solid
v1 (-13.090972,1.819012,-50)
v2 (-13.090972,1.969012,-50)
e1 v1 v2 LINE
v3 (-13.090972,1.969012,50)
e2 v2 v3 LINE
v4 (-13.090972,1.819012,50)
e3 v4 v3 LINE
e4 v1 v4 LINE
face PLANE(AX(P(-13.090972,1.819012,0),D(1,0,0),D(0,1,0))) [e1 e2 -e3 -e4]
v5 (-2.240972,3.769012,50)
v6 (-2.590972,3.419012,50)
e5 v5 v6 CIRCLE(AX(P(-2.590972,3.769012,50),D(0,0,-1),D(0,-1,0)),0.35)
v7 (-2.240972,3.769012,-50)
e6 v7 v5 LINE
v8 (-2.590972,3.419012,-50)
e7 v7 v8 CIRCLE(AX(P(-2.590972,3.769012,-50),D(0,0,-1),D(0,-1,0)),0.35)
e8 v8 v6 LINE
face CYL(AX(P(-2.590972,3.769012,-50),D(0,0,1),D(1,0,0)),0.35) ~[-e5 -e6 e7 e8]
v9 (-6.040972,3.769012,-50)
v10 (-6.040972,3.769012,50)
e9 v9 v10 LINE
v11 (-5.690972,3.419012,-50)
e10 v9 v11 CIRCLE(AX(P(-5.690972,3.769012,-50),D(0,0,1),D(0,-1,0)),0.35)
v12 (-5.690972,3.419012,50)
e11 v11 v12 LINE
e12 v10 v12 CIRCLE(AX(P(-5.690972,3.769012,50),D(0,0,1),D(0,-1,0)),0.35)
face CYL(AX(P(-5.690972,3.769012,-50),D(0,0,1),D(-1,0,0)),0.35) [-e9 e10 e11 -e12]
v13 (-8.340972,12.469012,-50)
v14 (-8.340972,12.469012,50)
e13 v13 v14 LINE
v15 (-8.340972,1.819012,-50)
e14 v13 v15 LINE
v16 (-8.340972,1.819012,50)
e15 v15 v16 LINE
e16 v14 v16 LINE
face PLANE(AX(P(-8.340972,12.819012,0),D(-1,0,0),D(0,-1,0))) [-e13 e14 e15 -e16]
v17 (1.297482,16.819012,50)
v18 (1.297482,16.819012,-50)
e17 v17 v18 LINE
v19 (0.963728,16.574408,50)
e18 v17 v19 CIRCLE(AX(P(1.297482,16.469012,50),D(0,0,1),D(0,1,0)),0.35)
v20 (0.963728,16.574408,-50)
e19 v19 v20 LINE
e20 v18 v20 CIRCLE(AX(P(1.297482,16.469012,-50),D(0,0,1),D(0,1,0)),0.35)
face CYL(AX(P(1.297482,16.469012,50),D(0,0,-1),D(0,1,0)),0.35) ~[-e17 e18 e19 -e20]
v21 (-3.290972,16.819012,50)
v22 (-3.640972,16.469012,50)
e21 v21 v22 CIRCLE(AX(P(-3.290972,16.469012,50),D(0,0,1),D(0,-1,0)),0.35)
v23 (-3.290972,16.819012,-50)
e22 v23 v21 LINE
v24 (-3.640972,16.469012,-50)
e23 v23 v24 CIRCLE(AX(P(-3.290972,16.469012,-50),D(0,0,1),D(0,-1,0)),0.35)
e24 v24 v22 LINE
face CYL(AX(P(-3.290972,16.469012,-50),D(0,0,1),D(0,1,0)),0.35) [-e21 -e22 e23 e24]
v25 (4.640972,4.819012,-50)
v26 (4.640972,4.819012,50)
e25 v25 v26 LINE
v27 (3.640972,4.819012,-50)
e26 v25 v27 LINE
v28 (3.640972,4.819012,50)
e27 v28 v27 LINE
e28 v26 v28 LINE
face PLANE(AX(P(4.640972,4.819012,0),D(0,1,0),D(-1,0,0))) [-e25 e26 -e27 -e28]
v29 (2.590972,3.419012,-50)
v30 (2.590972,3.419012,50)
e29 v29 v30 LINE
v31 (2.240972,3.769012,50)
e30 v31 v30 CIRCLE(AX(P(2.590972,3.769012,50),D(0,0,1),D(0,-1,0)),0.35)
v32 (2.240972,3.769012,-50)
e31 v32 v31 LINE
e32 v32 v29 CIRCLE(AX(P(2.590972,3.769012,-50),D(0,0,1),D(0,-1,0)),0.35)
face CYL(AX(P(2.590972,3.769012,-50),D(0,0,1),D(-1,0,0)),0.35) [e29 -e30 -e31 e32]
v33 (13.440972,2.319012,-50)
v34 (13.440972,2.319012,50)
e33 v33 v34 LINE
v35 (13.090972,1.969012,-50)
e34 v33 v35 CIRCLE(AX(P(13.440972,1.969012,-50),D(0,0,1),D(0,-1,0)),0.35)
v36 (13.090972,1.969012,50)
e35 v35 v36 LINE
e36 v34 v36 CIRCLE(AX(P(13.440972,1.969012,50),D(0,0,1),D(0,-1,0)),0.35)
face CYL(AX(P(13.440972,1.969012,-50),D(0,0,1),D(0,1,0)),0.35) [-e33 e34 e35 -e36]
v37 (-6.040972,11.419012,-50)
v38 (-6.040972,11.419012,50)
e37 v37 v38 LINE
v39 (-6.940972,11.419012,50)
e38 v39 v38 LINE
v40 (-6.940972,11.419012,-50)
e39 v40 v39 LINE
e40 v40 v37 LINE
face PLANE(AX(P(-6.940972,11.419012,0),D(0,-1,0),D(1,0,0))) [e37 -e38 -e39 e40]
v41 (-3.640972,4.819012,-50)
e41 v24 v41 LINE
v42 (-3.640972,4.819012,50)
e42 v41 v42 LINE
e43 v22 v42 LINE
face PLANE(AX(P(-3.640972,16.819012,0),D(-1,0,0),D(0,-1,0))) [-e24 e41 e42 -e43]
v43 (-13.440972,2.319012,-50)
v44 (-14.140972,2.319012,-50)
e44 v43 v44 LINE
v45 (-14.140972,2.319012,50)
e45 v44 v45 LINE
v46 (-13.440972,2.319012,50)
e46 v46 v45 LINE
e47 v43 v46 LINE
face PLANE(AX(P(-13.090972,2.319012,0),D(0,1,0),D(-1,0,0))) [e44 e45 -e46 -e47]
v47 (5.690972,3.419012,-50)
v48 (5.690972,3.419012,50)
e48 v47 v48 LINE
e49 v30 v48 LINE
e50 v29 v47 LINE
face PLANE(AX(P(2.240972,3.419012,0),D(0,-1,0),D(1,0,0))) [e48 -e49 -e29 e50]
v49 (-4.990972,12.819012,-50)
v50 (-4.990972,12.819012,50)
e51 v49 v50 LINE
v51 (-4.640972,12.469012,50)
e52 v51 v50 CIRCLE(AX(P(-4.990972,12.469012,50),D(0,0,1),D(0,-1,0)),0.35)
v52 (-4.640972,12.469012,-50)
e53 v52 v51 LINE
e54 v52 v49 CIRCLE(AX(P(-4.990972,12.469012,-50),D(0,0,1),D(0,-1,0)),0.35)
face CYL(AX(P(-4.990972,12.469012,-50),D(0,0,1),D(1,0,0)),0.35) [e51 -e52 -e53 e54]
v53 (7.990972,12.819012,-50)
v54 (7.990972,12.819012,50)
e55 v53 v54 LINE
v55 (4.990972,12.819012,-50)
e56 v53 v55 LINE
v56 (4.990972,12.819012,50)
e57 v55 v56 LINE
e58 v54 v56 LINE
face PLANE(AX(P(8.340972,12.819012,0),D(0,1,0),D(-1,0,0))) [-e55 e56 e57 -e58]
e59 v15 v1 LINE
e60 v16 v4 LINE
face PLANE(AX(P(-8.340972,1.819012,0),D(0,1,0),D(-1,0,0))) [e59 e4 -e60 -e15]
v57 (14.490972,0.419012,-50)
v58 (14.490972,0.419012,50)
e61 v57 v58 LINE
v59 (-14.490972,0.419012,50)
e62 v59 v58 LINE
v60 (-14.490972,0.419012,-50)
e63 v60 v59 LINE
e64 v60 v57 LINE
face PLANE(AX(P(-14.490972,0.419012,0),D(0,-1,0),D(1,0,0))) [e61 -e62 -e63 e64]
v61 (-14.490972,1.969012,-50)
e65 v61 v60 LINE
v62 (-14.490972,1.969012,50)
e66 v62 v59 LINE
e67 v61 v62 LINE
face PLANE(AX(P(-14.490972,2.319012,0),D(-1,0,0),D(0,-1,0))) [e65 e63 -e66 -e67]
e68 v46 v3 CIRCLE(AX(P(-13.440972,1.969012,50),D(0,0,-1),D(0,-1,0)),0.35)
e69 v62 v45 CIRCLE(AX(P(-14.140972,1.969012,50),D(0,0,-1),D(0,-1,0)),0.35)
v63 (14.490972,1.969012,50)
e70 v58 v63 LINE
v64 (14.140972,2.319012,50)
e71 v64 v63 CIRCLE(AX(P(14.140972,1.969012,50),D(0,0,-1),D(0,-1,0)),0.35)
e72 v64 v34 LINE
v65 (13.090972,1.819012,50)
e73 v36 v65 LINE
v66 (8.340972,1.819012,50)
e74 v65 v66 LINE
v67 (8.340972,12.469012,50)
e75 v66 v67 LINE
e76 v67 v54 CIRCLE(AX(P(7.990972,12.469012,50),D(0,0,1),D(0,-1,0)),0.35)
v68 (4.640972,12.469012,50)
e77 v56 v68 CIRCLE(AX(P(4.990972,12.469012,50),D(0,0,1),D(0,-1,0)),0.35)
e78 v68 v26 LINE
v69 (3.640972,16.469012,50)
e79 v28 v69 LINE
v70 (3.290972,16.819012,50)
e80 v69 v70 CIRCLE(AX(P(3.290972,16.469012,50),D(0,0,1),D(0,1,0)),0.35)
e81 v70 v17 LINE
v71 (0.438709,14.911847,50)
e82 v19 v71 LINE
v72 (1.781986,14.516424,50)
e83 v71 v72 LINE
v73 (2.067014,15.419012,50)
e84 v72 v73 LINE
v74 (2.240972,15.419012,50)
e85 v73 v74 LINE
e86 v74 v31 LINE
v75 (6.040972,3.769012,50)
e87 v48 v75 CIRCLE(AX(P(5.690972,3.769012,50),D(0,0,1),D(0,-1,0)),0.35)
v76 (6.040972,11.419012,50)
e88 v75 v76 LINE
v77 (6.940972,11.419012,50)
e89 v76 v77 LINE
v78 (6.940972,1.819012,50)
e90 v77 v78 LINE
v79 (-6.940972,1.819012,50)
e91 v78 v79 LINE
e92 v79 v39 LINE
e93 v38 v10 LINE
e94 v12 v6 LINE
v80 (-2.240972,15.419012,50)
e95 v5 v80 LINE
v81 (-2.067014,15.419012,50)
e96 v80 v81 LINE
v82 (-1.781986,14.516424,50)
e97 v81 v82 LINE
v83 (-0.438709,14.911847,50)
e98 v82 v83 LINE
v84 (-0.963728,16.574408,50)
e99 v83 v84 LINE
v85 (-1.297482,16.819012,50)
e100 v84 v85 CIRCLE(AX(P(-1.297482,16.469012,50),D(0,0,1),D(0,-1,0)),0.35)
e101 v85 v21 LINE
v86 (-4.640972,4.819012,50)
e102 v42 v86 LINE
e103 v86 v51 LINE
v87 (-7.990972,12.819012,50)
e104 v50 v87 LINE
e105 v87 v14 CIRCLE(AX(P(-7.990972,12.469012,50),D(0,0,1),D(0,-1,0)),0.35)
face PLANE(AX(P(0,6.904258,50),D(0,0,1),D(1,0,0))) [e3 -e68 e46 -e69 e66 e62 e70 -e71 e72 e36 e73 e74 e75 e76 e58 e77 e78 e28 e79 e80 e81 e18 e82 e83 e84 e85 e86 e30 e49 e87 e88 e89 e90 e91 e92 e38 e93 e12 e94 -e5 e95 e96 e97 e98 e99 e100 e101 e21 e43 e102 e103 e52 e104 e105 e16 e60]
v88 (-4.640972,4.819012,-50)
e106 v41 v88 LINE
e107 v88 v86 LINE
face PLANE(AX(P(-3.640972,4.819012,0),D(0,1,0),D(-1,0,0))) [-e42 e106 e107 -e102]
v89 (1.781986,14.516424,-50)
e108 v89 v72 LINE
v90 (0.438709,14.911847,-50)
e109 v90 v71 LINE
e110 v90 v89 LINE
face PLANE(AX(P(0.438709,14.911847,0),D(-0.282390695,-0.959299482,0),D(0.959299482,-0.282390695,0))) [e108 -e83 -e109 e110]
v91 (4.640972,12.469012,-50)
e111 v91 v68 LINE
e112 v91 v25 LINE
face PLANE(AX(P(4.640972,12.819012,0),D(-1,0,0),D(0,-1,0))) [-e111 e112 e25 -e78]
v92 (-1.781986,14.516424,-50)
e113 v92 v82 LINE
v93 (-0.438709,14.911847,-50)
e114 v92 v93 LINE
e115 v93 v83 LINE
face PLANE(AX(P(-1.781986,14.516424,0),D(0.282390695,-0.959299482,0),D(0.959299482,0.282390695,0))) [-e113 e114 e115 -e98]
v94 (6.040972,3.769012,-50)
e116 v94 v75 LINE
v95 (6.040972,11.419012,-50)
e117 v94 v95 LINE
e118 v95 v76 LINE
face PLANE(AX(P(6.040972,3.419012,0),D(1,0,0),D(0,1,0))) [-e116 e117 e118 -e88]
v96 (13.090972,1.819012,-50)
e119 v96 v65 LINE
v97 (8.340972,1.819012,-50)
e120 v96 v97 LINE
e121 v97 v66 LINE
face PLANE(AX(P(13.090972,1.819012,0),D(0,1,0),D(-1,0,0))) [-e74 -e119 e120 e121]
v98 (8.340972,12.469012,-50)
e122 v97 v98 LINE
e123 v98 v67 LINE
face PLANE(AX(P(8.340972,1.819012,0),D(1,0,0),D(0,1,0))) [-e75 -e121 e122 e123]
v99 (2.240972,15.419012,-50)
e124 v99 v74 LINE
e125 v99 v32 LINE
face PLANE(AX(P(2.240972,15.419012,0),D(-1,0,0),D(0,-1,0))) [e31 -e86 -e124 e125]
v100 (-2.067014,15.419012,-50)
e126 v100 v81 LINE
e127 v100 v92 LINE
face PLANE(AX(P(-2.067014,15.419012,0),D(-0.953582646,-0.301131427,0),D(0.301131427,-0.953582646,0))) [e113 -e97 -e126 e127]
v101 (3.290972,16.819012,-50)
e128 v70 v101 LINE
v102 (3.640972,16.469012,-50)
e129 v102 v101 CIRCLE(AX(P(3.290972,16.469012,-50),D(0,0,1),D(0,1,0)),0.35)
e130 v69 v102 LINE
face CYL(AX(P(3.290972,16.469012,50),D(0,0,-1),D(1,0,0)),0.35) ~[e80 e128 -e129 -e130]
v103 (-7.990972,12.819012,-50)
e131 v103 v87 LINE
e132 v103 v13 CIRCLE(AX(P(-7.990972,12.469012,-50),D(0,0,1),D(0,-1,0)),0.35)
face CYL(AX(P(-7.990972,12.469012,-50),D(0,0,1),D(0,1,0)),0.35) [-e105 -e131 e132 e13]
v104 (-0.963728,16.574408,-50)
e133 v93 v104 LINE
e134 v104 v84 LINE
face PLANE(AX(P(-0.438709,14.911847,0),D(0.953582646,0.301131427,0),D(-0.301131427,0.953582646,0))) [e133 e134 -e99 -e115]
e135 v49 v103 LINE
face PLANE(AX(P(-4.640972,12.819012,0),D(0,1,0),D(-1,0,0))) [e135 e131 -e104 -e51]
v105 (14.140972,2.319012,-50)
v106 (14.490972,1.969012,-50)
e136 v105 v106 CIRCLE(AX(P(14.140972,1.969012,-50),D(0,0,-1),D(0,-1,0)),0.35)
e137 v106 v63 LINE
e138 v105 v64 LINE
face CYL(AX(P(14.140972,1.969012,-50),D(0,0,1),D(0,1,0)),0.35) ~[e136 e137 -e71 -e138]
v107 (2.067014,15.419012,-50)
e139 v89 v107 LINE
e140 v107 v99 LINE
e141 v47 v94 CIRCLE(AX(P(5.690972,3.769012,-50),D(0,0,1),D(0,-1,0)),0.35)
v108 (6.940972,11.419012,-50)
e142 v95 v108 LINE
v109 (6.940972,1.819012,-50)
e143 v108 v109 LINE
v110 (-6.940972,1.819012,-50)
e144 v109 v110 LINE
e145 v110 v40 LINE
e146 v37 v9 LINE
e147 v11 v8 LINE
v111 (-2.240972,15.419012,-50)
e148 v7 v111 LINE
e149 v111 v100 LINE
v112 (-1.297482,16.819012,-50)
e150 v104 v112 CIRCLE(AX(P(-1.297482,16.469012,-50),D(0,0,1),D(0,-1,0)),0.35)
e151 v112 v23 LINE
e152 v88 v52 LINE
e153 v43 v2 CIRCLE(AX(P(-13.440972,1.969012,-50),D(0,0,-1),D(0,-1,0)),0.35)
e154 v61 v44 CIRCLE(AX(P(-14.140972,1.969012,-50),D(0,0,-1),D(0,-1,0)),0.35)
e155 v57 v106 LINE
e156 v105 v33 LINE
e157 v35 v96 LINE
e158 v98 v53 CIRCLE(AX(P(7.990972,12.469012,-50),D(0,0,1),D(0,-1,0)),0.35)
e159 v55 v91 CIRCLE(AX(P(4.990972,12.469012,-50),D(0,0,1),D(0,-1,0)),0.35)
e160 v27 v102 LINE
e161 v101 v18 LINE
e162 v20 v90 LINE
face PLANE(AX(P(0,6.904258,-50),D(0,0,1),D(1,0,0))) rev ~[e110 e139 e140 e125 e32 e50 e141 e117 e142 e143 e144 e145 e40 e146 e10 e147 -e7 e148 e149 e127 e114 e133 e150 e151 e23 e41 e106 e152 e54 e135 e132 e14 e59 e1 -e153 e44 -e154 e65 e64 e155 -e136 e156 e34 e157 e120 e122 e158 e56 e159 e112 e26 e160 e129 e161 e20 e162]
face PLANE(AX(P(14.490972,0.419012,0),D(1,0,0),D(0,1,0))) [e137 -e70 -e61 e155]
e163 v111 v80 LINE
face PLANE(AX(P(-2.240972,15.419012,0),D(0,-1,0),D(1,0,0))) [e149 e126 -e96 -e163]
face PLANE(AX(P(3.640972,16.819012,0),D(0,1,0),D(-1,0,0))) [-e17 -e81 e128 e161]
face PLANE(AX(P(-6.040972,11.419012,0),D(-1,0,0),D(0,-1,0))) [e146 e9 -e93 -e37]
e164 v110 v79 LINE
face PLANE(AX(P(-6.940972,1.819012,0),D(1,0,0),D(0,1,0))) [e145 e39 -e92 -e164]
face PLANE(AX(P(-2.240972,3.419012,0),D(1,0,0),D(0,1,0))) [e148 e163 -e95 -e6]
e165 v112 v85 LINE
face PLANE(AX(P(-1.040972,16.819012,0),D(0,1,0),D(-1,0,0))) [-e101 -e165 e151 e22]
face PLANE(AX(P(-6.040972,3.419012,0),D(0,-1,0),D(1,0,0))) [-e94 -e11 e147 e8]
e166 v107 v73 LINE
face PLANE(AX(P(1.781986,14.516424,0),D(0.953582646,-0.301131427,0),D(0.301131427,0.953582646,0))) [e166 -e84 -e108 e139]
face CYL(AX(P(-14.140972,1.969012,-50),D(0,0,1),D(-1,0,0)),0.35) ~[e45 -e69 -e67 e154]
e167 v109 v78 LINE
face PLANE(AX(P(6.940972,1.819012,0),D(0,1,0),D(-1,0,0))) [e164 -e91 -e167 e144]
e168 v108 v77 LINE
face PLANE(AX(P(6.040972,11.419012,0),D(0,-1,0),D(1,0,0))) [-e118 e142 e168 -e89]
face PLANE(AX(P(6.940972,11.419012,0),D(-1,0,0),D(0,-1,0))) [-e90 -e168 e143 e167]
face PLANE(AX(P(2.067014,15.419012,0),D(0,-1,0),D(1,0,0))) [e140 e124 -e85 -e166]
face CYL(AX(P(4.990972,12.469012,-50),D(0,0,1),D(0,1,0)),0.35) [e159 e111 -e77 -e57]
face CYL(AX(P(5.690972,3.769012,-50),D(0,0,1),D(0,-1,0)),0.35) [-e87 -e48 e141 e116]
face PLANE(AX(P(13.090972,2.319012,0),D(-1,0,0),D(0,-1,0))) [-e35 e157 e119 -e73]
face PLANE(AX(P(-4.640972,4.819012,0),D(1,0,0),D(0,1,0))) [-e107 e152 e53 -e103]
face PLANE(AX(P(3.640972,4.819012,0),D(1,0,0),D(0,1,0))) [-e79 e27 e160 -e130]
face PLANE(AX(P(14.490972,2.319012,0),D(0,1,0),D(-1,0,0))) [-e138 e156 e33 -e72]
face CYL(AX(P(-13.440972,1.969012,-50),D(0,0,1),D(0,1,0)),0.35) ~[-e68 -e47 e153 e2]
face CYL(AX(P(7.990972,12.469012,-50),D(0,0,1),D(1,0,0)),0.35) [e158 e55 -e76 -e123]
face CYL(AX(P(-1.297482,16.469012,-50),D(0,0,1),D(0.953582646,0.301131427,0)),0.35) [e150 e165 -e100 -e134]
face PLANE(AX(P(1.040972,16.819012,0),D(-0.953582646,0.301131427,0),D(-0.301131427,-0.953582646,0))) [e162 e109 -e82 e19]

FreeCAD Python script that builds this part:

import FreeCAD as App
import Part
import Sketcher


def edges_at(feature, points):
    """Names of the edges that pass closest to the given points."""
    edges = feature.Shape.Edges
    near = lambda p: min(range(len(edges)), key=lambda i: edges[i].distToShape(Part.Vertex(*p))[0])
    return sorted({f"Edge{near(p) + 1}" for p in points})


def add_polygon(sketch, points):
    """Adds a closed chain of lines whose ends are joined by coincident constraints."""
    first, n = sketch.GeometryCount, len(points)
    for a, b in zip(points, points[1:] + points[:1]):
        sketch.addGeometry(Part.LineSegment(App.Vector(*a, 0), App.Vector(*b, 0)), False)
    for i in range(n):
        sketch.addConstraint(Sketcher.Constraint("Coincident", first + i, 2, first + (i + 1) % n, 1))

doc = App.newDocument("Part")
body = doc.addObject("PartDesign::Body", "Body")

sketch1 = doc.addObject("Sketcher::SketchObject", "Sketch")
body.addObject(sketch1)
sketch1.AttachmentSupport = (doc.XY_Plane, [""])
sketch1.MapMode = "FlatFace"
add_polygon(sketch1, [(1.04, 16.82), (0.44, 14.91), (1.78, 14.52), (2.07, 15.42), (2.24, 15.42), (2.24, 3.42), (6.04, 3.42), (6.04, 11.42), (6.94, 11.42), (6.94, 1.82), (-6.94, 1.82), (-6.94, 11.42), (-6.04, 11.42), (-6.04, 3.42), (-2.24, 3.42), (-2.24, 15.42), (-2.07, 15.42), (-1.78, 14.52), (-0.44, 14.91), (-1.04, 16.82), (-3.64, 16.82), (-3.64, 4.82), (-4.64, 4.82), (-4.64, 12.82), (-8.34, 12.82), (-8.34, 1.82), (-13.09, 1.82), (-13.09, 2.32), (-14.49, 2.32), (-14.49, 0.42), (14.49, 0.42), (14.49, 2.32), (13.09, 2.32), (13.09, 1.82), (8.34, 1.82), (8.34, 12.82), (4.64, 12.82), (4.64, 4.82), (3.64, 4.82), (3.64, 16.82)])
sketch1.addConstraint([
    Sketcher.Constraint("Horizontal", 3),
    Sketcher.Constraint("Vertical", 4),
    Sketcher.Constraint("Horizontal", 5),
    Sketcher.Constraint("Vertical", 6),
    Sketcher.Constraint("Horizontal", 7),
    Sketcher.Constraint("Vertical", 8),
    Sketcher.Constraint("Horizontal", 9),
    Sketcher.Constraint("Vertical", 10),
    Sketcher.Constraint("Horizontal", 11),
    Sketcher.Constraint("Vertical", 12),
    Sketcher.Constraint("Horizontal", 13),
    Sketcher.Constraint("Vertical", 14),
    Sketcher.Constraint("Horizontal", 15),
    Sketcher.Constraint("Horizontal", 19),
    Sketcher.Constraint("Vertical", 20),
    Sketcher.Constraint("Horizontal", 21),
    Sketcher.Constraint("Vertical", 22),
    Sketcher.Constraint("Horizontal", 23),
    Sketcher.Constraint("Vertical", 24),
    Sketcher.Constraint("Horizontal", 25),
    Sketcher.Constraint("Vertical", 26),
    Sketcher.Constraint("Horizontal", 27),
    Sketcher.Constraint("Vertical", 28),
    Sketcher.Constraint("Horizontal", 29),
    Sketcher.Constraint("Vertical", 30),
    Sketcher.Constraint("Horizontal", 31),
    Sketcher.Constraint("Vertical", 32),
    Sketcher.Constraint("Horizontal", 33),
    Sketcher.Constraint("Vertical", 34),
    Sketcher.Constraint("Horizontal", 35),
    Sketcher.Constraint("Vertical", 36),
    Sketcher.Constraint("Horizontal", 37),
    Sketcher.Constraint("Vertical", 38),
    Sketcher.Constraint("Horizontal", 39),
    Sketcher.Constraint("Symmetric", 7, 2, 10, 2, -2),
    Sketcher.Constraint("Symmetric", 5, 2, 12, 2, -2),
    Sketcher.Constraint("Symmetric", 3, 2, 14, 2, -2),
    Sketcher.Constraint("Symmetric", 1, 2, 16, 2, -2),
    Sketcher.Constraint("Symmetric", 0, 2, 17, 2, -2),
    Sketcher.Constraint("Symmetric", 27, 2, 30, 2, -2),
    Sketcher.Constraint("Symmetric", 25, 2, 32, 2, -2),
    Sketcher.Constraint("Symmetric", 23, 2, 34, 2, -2),
    Sketcher.Constraint("Symmetric", 21, 2, 36, 2, -2),
    Sketcher.Constraint("Symmetric", 19, 2, 38, 2, -2),
    Sketcher.Constraint("Parallel", 0, 2),
    Sketcher.Constraint("Parallel", 16, 18),
    Sketcher.Constraint("Horizontal", 9, 2, 24, 2),
    Sketcher.Constraint("Equal", 3, 15),
    Sketcher.Constraint("Equal", 14, 20),
    Sketcher.Constraint("Equal", 12, 22),
    Sketcher.Constraint("DistanceX", 21, 2, 21, 1, 1.0),
    Sketcher.Constraint("DistanceY", 4, 2, 4, 1, 12.0),
    Sketcher.Constraint("DistanceY", 6, 1, 6, 2, 8.0),
    Sketcher.Constraint("DistanceY", 24, 2, 24, 1, 11.0),
    Sketcher.Constraint("Distance", 0, 2.0),
    Sketcher.Constraint("DistanceX", 5, 1, 5, 2, 3.8),
    Sketcher.Constraint("DistanceX", 7, 1, 7, 2, 0.9),
    Sketcher.Constraint("DistanceX", 19, 2, 19, 1, 2.6),
    Sketcher.Constraint("DistanceX", 23, 2, 23, 1, 3.7),
    Sketcher.Constraint("DistanceX", 27, 2, 27, 1, 1.4),
    Sketcher.Constraint("DistanceY", 8, 2, 8, 1, 9.6),
    Sketcher.Constraint("DistanceY", 26, 1, 26, 2, 0.5),
    Sketcher.Constraint("DistanceY", 28, 2, 28, 1, 1.9),
    Sketcher.Constraint("DistanceX", 25, 2, 25, 1, 4.75),
    Sketcher.Constraint("DistanceX", 14, 2, 18, 2, 1.2),
    Sketcher.Constraint("DistanceX", 15, 2, 1, 2, 3.849),
    Sketcher.Constraint("Distance", 1, 1.400269),
    Sketcher.Constraint("DistanceX", 3, 1, 3, 2, 0.173958),
    Sketcher.Constraint("DistanceX", 9, 2, 9, 1, 13.881943),
    Sketcher.Constraint("DistanceY", -1, 1, 0, 2, 14.911847),
])
pad1 = doc.addObject("PartDesign::Pad", "Pad")
body.addObject(pad1)
pad1.Profile = sketch1
pad1.Length = 100
pad1.Midplane = True
doc.recompute()

fillet = doc.addObject("PartDesign::Fillet", "Fillet")
body.addObject(fillet)
fillet.Base = (pad1, edges_at(pad1, [(14.491, 2.319, 0)]))
fillet.Radius = 0.35
doc.recompute()

fillet2 = doc.addObject("PartDesign::Fillet", "Fillet001")
body.addObject(fillet2)
fillet2.Base = (fillet, edges_at(fillet, [
    (13.091, 2.319, 0),
    (8.341, 12.819, 0),
    (4.641, 12.819, 0),
    (3.641, 16.819, 0),
    (1.041, 16.819, 0),
]))
fillet2.Radius = 0.35
doc.recompute()

fillet3 = doc.addObject("PartDesign::Fillet", "Fillet002")
body.addObject(fillet3)
fillet3.Base = (fillet2, edges_at(fillet2, [(6.041, 3.419, 0), (2.241, 3.419, 0), (-2.241, 3.419, 0)]))
fillet3.Radius = 0.35
doc.recompute()

fillet4 = doc.addObject("PartDesign::Fillet", "Fillet003")
body.addObject(fillet4)
fillet4.Base = (fillet3, edges_at(fillet3, [
    (-6.041, 3.419, 0),
    (-8.341, 12.819, 0),
    (-14.491, 2.319, 0),
    (-3.641, 16.819, 0),
    (-1.041, 16.819, 0),
    (-4.641, 12.819, 0),
    (-13.091, 2.319, 0),
]))
fillet4.Radius = 0.35

doc.recompute()
